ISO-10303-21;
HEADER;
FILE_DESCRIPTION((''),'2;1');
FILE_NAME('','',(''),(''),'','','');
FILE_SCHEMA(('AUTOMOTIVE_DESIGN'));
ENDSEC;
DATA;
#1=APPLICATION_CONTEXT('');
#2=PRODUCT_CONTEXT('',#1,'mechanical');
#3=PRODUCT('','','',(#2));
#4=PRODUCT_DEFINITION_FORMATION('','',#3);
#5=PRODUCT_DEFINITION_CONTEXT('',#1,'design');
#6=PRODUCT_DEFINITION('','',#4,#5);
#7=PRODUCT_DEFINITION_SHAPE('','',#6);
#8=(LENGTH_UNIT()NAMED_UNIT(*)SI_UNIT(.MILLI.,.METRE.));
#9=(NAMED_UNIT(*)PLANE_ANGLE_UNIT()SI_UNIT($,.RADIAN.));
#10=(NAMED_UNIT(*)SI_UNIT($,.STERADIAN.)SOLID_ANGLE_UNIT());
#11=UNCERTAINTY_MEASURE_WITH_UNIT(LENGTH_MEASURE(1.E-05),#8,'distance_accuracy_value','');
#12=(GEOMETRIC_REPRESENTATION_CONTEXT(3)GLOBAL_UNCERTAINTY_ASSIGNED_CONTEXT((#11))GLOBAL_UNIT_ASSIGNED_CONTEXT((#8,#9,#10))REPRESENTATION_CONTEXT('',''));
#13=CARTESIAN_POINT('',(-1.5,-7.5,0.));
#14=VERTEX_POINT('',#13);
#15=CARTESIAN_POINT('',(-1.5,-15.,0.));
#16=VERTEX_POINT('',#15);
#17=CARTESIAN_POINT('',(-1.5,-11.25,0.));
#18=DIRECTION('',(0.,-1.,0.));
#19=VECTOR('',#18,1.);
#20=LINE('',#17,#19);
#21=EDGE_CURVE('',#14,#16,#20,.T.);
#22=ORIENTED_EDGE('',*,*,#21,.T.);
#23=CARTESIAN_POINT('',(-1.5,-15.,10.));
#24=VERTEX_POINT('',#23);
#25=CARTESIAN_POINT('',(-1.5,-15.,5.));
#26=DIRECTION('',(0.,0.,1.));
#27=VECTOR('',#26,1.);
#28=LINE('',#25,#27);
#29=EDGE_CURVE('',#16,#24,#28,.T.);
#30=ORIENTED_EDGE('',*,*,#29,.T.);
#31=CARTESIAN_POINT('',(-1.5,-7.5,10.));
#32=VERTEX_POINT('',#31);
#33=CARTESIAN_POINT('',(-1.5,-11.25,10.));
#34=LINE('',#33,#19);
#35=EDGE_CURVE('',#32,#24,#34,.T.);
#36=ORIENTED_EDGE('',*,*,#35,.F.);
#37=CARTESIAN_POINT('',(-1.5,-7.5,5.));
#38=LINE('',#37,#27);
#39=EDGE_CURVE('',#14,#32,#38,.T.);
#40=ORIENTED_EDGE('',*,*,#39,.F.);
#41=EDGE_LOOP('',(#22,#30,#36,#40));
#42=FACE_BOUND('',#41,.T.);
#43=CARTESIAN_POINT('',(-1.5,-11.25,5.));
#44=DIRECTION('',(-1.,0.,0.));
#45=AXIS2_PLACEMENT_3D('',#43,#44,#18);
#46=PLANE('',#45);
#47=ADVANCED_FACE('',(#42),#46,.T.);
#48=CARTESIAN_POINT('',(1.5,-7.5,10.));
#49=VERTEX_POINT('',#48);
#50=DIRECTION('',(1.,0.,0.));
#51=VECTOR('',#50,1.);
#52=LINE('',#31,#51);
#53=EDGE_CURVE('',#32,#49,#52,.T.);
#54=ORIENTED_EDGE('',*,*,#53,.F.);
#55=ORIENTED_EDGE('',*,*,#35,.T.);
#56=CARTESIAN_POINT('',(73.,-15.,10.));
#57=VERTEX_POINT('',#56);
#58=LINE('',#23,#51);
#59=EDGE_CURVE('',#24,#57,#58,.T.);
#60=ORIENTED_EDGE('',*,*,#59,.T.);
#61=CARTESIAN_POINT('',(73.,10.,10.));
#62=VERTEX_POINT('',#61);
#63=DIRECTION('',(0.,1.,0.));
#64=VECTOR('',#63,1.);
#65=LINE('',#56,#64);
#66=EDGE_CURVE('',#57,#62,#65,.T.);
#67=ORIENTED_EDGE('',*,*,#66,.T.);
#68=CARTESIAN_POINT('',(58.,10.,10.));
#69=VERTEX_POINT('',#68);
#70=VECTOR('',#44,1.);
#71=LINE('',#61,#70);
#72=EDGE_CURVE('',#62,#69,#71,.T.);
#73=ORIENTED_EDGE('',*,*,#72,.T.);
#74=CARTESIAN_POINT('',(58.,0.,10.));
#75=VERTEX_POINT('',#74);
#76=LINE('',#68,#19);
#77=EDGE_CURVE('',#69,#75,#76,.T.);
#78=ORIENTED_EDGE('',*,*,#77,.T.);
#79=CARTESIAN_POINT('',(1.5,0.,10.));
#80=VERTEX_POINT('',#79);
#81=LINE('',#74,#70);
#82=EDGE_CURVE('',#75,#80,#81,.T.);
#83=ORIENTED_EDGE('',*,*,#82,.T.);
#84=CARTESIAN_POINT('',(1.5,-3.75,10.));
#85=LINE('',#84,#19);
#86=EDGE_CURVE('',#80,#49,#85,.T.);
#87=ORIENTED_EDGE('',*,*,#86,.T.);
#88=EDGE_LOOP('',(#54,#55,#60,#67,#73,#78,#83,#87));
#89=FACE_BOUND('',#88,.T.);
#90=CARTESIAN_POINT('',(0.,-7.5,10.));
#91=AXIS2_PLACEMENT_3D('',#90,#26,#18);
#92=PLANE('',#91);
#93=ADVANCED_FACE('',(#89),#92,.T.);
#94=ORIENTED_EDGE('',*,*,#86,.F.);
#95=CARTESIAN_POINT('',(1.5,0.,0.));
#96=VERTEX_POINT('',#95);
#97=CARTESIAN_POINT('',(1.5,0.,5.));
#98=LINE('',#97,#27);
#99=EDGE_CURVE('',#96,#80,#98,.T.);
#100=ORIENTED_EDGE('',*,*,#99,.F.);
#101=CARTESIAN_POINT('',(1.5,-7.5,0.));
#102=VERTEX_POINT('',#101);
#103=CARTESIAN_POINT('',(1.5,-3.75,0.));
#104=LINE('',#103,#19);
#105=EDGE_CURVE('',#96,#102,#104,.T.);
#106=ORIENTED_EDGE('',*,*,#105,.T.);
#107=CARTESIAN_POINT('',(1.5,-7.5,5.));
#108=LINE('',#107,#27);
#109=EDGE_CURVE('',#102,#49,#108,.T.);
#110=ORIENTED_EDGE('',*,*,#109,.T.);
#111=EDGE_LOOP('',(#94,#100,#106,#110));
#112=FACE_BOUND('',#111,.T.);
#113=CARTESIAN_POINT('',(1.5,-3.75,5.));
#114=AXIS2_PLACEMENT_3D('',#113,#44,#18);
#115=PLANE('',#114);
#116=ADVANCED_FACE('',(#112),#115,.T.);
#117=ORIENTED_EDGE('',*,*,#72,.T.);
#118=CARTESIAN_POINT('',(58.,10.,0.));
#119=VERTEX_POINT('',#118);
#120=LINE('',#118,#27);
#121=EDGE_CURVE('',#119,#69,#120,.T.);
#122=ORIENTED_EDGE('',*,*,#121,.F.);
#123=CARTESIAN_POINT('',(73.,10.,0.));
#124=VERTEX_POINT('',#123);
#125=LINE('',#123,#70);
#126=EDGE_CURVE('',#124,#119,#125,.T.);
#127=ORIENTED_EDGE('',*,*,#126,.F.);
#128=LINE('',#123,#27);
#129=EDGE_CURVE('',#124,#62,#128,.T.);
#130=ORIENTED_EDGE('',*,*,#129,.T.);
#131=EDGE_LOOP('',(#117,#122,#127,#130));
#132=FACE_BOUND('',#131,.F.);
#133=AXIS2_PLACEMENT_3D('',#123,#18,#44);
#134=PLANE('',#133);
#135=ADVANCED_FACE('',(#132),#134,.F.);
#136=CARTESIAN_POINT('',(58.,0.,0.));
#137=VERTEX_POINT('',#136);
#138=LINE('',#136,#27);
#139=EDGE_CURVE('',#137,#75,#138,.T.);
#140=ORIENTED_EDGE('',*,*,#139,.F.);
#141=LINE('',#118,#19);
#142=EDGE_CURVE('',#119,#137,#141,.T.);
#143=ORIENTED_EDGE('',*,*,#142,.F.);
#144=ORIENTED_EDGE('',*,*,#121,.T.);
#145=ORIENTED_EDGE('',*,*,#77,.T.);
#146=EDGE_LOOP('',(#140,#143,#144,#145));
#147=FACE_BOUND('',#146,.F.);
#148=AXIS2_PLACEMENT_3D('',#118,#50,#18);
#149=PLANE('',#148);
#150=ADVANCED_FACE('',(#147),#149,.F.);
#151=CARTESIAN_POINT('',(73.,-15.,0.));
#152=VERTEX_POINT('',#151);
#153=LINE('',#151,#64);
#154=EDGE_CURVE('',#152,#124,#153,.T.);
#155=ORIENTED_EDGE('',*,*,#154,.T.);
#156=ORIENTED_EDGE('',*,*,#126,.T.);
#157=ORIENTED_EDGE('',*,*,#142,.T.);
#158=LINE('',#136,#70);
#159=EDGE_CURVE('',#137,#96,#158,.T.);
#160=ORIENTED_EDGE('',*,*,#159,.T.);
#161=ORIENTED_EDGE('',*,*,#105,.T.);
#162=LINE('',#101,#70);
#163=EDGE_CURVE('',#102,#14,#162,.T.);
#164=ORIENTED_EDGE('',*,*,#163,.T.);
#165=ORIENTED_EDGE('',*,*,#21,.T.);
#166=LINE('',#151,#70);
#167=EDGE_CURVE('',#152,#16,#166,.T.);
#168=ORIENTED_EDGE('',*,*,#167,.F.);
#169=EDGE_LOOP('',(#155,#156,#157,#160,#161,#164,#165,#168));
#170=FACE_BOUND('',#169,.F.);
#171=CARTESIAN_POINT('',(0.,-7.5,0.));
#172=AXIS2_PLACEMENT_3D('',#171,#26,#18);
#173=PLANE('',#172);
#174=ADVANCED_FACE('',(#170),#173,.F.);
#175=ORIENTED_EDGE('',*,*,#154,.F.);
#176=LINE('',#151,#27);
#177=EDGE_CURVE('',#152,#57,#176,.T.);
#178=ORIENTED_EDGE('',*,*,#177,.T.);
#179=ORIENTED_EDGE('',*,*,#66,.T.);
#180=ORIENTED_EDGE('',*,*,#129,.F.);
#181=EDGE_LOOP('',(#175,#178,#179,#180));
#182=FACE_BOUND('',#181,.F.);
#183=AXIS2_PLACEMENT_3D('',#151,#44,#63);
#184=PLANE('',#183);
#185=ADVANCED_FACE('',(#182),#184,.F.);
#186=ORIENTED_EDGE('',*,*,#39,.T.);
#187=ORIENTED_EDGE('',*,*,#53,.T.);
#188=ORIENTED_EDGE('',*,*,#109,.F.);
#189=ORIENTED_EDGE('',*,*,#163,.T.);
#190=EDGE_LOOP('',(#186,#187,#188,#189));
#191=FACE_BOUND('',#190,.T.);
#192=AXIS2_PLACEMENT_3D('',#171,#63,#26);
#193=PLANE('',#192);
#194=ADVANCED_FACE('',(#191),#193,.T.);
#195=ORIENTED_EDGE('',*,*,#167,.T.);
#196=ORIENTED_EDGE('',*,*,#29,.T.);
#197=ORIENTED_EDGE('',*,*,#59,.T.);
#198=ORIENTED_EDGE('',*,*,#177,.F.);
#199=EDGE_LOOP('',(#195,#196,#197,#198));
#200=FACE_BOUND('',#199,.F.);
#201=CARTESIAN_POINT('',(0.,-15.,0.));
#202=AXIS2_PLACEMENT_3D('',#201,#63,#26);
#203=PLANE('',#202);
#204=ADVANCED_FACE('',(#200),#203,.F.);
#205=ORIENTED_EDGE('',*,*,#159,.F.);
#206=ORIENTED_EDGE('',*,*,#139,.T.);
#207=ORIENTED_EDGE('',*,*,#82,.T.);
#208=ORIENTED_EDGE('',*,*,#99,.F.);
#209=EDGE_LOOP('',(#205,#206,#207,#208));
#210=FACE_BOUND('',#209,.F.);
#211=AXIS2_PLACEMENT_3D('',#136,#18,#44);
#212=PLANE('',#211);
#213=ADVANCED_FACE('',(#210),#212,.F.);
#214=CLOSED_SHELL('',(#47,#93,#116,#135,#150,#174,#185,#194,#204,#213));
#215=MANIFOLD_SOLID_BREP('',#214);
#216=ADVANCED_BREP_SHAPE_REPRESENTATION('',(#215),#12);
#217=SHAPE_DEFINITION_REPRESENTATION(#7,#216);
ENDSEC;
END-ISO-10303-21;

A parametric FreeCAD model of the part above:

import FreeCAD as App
import Part
import Sketcher

V = App.Vector


def add_polygon(sketch, points):
    """Adds a closed chain of lines whose ends are joined by coincident constraints."""
    first, n = sketch.GeometryCount, len(points)
    for a, b in zip(points, points[1:] + points[:1]):
        sketch.addGeometry(Part.LineSegment(App.Vector(*a, 0), App.Vector(*b, 0)), False)
    for i in range(n):
        sketch.addConstraint(Sketcher.Constraint("Coincident", first + i, 2, first + (i + 1) % n, 1))

doc = App.newDocument("Part")
body = doc.addObject("PartDesign::Body", "Body")

# Sketch on XY plane
sketch1 = doc.addObject("Sketcher::SketchObject", "Sketch")
body.addObject(sketch1)
sketch1.AttachmentSupport = (doc.XY_Plane, [""])
sketch1.MapMode = "FlatFace"
add_polygon(sketch1, [(58, 0), (0, 0), (0, -15), (73, -15), (73, 10), (58, 10)])  # lines 0-5
sketch1.addConstraint(Sketcher.Constraint("Horizontal", 0))
sketch1.addConstraint(Sketcher.Constraint("Vertical", 1))
sketch1.addConstraint(Sketcher.Constraint("Horizontal", 2))
sketch1.addConstraint(Sketcher.Constraint("Vertical", 3))
sketch1.addConstraint(Sketcher.Constraint("Horizontal", 4))
sketch1.addConstraint(Sketcher.Constraint("Vertical", 5))
sketch1.addConstraint(Sketcher.Constraint("Coincident", 0, 2, -1, 1))
sketch1.addConstraint(Sketcher.Constraint("Equal", 4, 1))
sketch1.addConstraint(Sketcher.Constraint("DistanceX", 0, 2, 0, 1, 58.0))
sketch1.addConstraint(Sketcher.Constraint("DistanceX", 2, 1, 2, 2, 73.0))
sketch1.addConstraint(Sketcher.Constraint("DistanceY", 3, 1, 3, 2, 25.0))
pad1 = doc.addObject("PartDesign::Pad", "Pad")
body.addObject(pad1)
pad1.Profile = sketch1
pad1.Length = 10

# Sketch on YZ plane
sketch2 = doc.addObject("Sketcher::SketchObject", "Sketch001")
body.addObject(sketch2)
sketch2.AttachmentSupport = (doc.YZ_Plane, [""])
sketch2.MapMode = "FlatFace"
add_polygon(sketch2, [(0, 10), (0, 0), (-7.5, 0), (-7.5, 10)])  # lines 0-3
sketch2.addConstraint(Sketcher.Constraint("Vertical", 0))
sketch2.addConstraint(Sketcher.Constraint("Horizontal", 1))
sketch2.addConstraint(Sketcher.Constraint("Vertical", 2))
sketch2.addConstraint(Sketcher.Constraint("Horizontal", 3))
sketch2.addConstraint(Sketcher.Constraint("Coincident", 0, 2, -1, 1))
sketch2.addConstraint(Sketcher.Constraint("DistanceY", 0, 2, 0, 1, 10.0))
sketch2.addConstraint(Sketcher.Constraint("DistanceX", 1, 2, 1, 1, 7.5))
pocket1 = doc.addObject("PartDesign::Pocket", "Pocket")
body.addObject(pocket1)
pocket1.Profile = sketch2
pocket1.Length = 1.5
pocket1.Reversed = True

# Sketch on YZ plane
sketch3 = doc.addObject("Sketcher::SketchObject", "Sketch002")
body.addObject(sketch3)
sketch3.AttachmentSupport = (doc.YZ_Plane, [""])
sketch3.MapMode = "FlatFace"
add_polygon(sketch3, [(-7.5, 10), (-7.5, 0), (-15, 0), (-15, 10)])  # lines 0-3
sketch3.addConstraint(Sketcher.Constraint("Vertical", 0))
sketch3.addConstraint(Sketcher.Constraint("Horizontal", 1))
sketch3.addConstraint(Sketcher.Constraint("Vertical", 2))
sketch3.addConstraint(Sketcher.Constraint("Horizontal", 3))
sketch3.addConstraint(Sketcher.Constraint("PointOnObject", 0, 2, -1))
sketch3.addConstraint(Sketcher.Constraint("DistanceY", 0, 2, 0, 1, 10.0))
sketch3.addConstraint(Sketcher.Constraint("DistanceX", 1, 2, 1, 1, 7.5))
sketch3.addConstraint(Sketcher.Constraint("DistanceX", 1, 2, -1, 1, 15.0))
pad2 = doc.addObject("PartDesign::Pad", "Pad001")
body.addObject(pad2)
pad2.Profile = sketch3
pad2.Length = 1.5
pad2.Reversed = True

doc.recompute()
